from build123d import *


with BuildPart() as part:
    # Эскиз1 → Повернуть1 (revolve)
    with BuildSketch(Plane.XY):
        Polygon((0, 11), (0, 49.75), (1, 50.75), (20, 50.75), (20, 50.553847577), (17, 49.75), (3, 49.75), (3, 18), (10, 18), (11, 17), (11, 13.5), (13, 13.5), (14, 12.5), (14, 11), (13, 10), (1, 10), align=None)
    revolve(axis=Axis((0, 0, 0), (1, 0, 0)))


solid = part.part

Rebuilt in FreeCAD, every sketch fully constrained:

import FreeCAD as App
import Part
import Sketcher
from FreeCAD import Vector
Q = App.Units.Quantity


def add_polygon(sketch, points):
    """Adds a closed chain of lines whose ends are joined by coincident constraints."""
    first, n = sketch.GeometryCount, len(points)
    for a, b in zip(points, points[1:] + points[:1]):
        sketch.addGeometry(Part.LineSegment(App.Vector(*a, 0), App.Vector(*b, 0)), False)
    for i in range(n):
        sketch.addConstraint(Sketcher.Constraint("Coincident", first + i, 2, first + (i + 1) % n, 1))

doc = App.newDocument("Part")
body = doc.addObject("PartDesign::Body", "Body")

# Sketch on XY plane
sketch1 = body.newObject("Sketcher::SketchObject", "Sketch")
sketch1.AttachmentSupport = (doc.getObject("XY_Plane"), [""])
sketch1.MapMode = "FlatFace"
add_polygon(sketch1, [(0, 49.75), (0, 11), (1, 10), (13, 10), (14, 11), (14, 12.5), (13, 13.5), (11, 13.5), (11, 17), (10, 18), (3, 18), (3, 49.75), (17, 49.75), (20, 50.55), (20, 50.75), (1, 50.75)])  # lines 0-15
sketch1.addConstraint([
    Sketcher.Constraint("Vertical", 0),
    Sketcher.Constraint("Horizontal", 2),
    Sketcher.Constraint("Vertical", 4),
    Sketcher.Constraint("Horizontal", 6),
    Sketcher.Constraint("Vertical", 7),
    Sketcher.Constraint("Horizontal", 9),
    Sketcher.Constraint("Vertical", 10),
    Sketcher.Constraint("Horizontal", 11),
    Sketcher.Constraint("Vertical", 13),
    Sketcher.Constraint("Horizontal", 14),
    Sketcher.Constraint("PointOnObject", 0, 2, -2),
    Sketcher.Constraint("Perpendicular", 1, 3),
    Sketcher.Constraint("Perpendicular", 3, 5),
    Sketcher.Constraint("Parallel", 5, 8),
    Sketcher.Constraint("Perpendicular", 8, 15),
    Sketcher.Constraint("Horizontal", 0, 2, 3, 2),
    Sketcher.Constraint("Horizontal", 11, 2, 15, 2),
    Sketcher.Constraint("Vertical", 2, 2, 5, 2),
    Sketcher.Constraint("Vertical", 1, 2, 14, 2),
    Sketcher.Constraint("Equal", 1, 3),
    Sketcher.Constraint("Equal", 5, 8),
    Sketcher.Constraint("DistanceX", 2, 1, 2, 2, Q("12 mm")),
    Sketcher.Constraint("DistanceX", 6, 2, 6, 1, Q("2 mm")),
    Sketcher.Constraint("DistanceX", 9, 2, 9, 1, Q("7 mm")),
    Sketcher.Constraint("DistanceX", 11, 1, 11, 2, Q("14 mm")),
    Sketcher.Constraint("DistanceX", 14, 2, 14, 1, Q("19 mm")),
    Sketcher.Constraint("Angle", 12, Q("15 deg")),
    Sketcher.Constraint("DistanceY", 4, 1, 4, 2, Q("1.5 mm")),
    Sketcher.Constraint("DistanceY", 7, 1, 7, 2, Q("3.5 mm")),
    Sketcher.Constraint("DistanceY", -1, 1, 0, 2, Q("11 mm")),
    Sketcher.Constraint("DistanceX", -1, 1, 1, 2, Q("1 mm")),
    Sketcher.Constraint("DistanceY", 0, 2, 0, 1, Q("38.75 mm")),
])
revolution = body.newObject("PartDesign::Revolution", "Revolution")
revolution.Profile = sketch1
revolution.ReferenceAxis = (sketch1, ["H_Axis"])
revolution.Angle = 360

doc.recompute()
